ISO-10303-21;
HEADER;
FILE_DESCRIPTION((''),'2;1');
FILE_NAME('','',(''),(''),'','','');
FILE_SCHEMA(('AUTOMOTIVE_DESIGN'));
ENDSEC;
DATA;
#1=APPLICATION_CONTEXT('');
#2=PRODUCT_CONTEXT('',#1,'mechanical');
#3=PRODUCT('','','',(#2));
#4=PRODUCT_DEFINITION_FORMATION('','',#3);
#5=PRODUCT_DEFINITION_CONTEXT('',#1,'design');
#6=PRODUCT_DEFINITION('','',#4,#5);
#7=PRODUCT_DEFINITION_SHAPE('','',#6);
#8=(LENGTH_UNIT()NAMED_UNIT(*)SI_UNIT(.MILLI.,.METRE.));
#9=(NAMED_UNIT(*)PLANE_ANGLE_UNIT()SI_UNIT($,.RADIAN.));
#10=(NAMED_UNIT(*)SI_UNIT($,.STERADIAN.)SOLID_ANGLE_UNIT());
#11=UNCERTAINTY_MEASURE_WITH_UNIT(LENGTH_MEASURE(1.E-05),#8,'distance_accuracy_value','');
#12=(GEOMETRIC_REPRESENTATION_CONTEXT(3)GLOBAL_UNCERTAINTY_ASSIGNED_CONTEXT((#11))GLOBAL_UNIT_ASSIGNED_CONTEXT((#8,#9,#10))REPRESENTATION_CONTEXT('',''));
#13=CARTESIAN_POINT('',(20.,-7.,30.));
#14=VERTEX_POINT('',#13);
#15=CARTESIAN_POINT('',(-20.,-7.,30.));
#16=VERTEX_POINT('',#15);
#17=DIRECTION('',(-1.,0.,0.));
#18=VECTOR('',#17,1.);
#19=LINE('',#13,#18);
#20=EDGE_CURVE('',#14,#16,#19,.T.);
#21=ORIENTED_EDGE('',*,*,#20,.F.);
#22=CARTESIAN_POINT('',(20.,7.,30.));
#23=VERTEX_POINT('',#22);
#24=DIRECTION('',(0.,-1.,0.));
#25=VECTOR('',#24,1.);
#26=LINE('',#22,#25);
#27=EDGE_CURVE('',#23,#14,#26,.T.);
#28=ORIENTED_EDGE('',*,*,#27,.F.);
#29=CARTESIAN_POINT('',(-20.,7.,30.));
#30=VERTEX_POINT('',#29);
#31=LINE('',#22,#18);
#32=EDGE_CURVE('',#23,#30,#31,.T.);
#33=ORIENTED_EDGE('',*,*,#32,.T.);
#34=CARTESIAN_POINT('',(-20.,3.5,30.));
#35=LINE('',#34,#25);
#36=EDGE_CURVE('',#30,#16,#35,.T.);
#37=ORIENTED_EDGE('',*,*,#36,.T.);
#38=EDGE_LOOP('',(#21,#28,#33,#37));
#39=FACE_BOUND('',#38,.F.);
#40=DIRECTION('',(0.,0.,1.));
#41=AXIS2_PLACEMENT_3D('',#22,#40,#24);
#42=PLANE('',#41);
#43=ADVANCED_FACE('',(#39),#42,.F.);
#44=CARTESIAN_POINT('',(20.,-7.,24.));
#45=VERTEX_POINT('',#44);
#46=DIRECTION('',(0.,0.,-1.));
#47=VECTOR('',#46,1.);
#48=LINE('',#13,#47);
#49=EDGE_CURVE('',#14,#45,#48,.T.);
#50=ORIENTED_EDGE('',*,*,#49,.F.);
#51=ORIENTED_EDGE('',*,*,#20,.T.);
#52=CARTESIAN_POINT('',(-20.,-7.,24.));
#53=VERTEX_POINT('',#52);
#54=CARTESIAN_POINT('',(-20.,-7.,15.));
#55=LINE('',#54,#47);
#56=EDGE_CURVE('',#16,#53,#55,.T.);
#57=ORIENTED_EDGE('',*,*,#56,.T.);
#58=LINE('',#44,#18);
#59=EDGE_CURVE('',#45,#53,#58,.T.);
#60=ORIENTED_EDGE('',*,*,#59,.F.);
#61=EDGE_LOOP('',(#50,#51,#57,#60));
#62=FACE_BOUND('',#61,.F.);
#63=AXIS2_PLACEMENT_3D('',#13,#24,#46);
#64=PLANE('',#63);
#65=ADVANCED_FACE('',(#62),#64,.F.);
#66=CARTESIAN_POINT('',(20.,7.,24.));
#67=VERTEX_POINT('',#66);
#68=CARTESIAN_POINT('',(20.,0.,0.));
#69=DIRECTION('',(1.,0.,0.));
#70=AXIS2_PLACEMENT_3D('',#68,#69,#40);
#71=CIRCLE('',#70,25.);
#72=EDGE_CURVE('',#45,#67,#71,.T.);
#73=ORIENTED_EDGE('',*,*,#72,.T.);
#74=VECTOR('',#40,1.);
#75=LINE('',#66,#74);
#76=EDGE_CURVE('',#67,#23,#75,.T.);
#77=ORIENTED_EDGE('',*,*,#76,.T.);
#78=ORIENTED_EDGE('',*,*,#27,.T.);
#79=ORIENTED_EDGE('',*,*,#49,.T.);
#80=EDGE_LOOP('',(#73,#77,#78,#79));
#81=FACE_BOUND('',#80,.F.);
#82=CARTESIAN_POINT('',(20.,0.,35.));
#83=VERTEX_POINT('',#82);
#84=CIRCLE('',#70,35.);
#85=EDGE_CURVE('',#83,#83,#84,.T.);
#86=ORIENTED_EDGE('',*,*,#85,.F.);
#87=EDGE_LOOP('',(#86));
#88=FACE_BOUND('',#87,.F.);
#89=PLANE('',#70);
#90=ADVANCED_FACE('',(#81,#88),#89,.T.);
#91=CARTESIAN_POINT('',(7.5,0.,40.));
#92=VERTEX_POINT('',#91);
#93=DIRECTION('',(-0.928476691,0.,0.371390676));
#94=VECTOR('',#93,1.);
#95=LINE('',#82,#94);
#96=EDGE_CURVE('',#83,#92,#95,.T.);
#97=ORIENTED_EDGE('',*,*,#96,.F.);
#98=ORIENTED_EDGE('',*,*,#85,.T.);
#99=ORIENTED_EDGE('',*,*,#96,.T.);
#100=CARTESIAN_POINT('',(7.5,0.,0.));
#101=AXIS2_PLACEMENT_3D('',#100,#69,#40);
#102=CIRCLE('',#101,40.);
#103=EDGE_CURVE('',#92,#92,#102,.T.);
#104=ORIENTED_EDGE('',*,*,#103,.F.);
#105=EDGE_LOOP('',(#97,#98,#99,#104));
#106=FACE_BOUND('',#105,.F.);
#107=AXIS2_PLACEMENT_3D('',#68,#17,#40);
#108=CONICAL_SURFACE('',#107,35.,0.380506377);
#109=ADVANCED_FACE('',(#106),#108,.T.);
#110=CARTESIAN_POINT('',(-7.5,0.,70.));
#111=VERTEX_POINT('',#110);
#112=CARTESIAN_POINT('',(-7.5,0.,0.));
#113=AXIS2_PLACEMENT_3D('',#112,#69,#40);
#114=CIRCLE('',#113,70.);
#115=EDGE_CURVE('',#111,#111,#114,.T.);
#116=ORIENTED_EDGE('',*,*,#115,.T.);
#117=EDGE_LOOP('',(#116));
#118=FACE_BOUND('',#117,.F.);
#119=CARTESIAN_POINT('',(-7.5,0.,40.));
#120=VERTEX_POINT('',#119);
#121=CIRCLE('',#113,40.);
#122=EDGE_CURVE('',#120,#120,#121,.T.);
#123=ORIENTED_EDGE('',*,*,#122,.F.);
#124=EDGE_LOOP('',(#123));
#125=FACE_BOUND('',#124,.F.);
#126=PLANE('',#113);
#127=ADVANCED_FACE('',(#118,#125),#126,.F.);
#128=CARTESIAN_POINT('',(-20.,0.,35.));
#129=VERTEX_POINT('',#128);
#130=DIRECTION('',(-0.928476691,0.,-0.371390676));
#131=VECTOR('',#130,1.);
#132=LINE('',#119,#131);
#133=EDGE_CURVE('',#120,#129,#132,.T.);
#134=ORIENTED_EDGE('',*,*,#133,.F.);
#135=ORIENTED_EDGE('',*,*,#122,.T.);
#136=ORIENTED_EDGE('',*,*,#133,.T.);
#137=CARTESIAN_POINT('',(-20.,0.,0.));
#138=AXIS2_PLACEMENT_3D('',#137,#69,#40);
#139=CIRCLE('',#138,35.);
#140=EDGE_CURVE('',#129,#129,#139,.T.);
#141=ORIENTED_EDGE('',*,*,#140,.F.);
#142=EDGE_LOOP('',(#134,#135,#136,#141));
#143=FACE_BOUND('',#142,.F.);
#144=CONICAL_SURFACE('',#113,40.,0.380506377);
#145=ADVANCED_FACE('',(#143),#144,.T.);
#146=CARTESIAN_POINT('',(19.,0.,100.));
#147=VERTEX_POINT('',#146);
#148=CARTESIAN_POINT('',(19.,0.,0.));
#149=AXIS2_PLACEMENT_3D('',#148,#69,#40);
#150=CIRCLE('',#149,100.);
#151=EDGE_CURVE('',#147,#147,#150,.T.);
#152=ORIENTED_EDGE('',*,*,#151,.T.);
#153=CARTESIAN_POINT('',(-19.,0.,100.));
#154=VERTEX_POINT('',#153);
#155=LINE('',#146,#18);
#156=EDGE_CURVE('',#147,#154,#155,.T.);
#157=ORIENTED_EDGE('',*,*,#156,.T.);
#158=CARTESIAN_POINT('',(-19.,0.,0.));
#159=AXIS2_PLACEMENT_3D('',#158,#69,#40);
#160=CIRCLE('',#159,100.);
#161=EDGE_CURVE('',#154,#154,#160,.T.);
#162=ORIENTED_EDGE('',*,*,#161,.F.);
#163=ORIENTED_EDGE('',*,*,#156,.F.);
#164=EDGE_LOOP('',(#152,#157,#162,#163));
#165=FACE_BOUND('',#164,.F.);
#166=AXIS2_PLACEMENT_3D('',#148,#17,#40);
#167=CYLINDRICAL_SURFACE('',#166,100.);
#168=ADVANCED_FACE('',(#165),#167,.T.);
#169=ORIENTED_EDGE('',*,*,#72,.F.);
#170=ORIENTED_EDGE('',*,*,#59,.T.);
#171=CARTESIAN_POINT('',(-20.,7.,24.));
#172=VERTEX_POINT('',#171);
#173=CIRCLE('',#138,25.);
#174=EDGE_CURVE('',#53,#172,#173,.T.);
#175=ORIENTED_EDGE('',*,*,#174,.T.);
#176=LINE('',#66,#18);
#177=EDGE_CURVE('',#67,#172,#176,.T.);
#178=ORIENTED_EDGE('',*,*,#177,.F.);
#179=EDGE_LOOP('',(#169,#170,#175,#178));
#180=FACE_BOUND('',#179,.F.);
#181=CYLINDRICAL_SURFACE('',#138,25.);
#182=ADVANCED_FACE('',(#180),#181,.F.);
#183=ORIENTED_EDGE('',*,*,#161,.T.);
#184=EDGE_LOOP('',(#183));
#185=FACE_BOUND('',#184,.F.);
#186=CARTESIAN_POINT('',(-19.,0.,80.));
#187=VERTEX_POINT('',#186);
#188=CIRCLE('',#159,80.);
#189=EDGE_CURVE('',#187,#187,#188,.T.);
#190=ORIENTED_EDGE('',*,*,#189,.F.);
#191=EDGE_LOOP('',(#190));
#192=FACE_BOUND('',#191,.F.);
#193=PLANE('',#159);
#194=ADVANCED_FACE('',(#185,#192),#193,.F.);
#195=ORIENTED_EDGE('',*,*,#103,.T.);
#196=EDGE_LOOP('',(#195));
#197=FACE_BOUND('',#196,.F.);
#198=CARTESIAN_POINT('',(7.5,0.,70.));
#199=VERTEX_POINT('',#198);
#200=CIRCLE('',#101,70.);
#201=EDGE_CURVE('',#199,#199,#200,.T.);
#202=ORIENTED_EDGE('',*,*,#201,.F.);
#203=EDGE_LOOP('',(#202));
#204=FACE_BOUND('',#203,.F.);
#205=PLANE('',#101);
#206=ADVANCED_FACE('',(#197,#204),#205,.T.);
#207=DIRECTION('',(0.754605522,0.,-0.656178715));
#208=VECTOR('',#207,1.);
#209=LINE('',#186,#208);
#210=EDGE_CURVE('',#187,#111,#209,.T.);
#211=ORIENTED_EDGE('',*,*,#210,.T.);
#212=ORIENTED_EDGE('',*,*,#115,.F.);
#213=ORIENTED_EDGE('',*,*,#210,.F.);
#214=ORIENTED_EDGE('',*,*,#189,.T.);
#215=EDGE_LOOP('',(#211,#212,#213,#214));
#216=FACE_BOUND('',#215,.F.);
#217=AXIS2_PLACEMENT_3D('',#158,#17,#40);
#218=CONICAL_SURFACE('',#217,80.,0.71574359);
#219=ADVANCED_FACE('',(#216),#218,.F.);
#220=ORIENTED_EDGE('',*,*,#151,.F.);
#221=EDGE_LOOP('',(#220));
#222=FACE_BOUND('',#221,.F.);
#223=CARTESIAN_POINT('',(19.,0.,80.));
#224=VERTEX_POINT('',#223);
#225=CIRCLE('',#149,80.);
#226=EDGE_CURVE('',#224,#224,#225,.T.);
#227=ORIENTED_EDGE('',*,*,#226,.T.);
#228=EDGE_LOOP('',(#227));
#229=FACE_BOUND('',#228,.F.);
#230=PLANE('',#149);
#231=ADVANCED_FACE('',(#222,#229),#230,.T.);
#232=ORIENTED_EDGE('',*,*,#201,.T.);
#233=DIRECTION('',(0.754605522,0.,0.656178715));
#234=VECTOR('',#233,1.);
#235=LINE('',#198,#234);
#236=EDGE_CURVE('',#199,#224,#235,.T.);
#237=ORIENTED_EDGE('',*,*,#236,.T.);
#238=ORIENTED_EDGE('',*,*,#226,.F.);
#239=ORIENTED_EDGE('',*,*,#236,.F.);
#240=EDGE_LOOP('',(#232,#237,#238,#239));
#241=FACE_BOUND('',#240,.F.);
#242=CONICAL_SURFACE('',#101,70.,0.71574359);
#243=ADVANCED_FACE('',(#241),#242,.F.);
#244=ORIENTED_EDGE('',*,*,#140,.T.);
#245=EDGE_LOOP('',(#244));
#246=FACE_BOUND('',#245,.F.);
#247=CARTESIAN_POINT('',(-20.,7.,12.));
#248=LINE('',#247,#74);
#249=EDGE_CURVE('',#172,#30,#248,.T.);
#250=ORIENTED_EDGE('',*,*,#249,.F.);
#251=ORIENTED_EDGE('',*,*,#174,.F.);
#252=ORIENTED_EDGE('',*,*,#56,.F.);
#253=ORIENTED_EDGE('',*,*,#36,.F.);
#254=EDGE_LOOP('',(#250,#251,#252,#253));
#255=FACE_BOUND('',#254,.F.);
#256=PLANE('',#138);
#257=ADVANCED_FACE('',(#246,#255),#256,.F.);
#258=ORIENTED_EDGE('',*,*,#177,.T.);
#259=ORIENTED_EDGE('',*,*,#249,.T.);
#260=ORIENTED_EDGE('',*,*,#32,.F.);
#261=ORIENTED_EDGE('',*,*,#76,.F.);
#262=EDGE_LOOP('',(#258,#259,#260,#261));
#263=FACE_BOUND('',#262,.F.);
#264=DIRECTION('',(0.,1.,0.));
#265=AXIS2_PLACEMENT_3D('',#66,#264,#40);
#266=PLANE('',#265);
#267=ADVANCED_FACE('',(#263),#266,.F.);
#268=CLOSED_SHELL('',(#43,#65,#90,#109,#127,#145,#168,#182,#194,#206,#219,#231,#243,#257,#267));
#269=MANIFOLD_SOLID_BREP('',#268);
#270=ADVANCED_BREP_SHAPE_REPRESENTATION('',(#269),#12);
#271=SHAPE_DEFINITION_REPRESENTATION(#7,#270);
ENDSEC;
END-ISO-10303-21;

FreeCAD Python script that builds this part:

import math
import FreeCAD as App
import Part
import Sketcher
from FreeCAD import Vector
Q = App.Units.Quantity

doc = App.newDocument("Part")
body = doc.addObject("PartDesign::Body", "Body")

# Sketch on XZ plane
sketch1 = body.newObject("Sketcher::SketchObject", "Sketch")
sketch1.AttachmentSupport = (doc.getObject("XZ_Plane"), [""])
sketch1.MapMode = "FlatFace"
sketch1.addGeometry([
    Part.LineSegment(Vector(-20, 25, 0), Vector(20, 25, 0)),  # 0
    Part.LineSegment(Vector(20, 25, 0), Vector(20, 35, 0)),  # 1
    Part.LineSegment(Vector(20, 35, 0), Vector(8, 40, 0)),  # 2
    Part.LineSegment(Vector(8, 40, 0), Vector(8, 70, 0)),  # 3
    Part.LineSegment(Vector(8, 70, 0), Vector(19, 80, 0)),  # 4
    Part.LineSegment(Vector(19, 80, 0), Vector(19, 100, 0)),  # 5
    Part.LineSegment(Vector(19, 100, 0), Vector(-19, 100, 0)),  # 6
    Part.LineSegment(Vector(-19, 100, 0), Vector(-19, 80, 0)),  # 7
    Part.LineSegment(Vector(-19, 80, 0), Vector(-8, 70, 0)),  # 8
    Part.LineSegment(Vector(-8, 70, 0), Vector(-8, 40, 0)),  # 9
    Part.LineSegment(Vector(-8, 40, 0), Vector(-20, 35, 0)),  # 10
    Part.LineSegment(Vector(-20, 35, 0), Vector(-20, 25, 0)),  # 11
], False)
sketch1.addConstraint([
    Sketcher.Constraint("Coincident", 0, 2, 1, 1),
    Sketcher.Constraint("Coincident", 1, 2, 2, 1),
    Sketcher.Constraint("Coincident", 2, 2, 3, 1),
    Sketcher.Constraint("Coincident", 3, 2, 4, 1),
    Sketcher.Constraint("Coincident", 4, 2, 5, 1),
    Sketcher.Constraint("Coincident", 5, 2, 6, 1),
    Sketcher.Constraint("Coincident", 6, 2, 7, 1),
    Sketcher.Constraint("Coincident", 7, 2, 8, 1),
    Sketcher.Constraint("Coincident", 8, 2, 9, 1),
    Sketcher.Constraint("Coincident", 9, 2, 10, 1),
    Sketcher.Constraint("Coincident", 10, 2, 11, 1),
    Sketcher.Constraint("Coincident", 11, 2, 0, 1),
    Sketcher.Constraint("Horizontal", 0),
    Sketcher.Constraint("Vertical", 1),
    Sketcher.Constraint("Vertical", 3),
    Sketcher.Constraint("Vertical", 5),
    Sketcher.Constraint("Horizontal", 6),
    Sketcher.Constraint("Vertical", 7),
    Sketcher.Constraint("Vertical", 9),
    Sketcher.Constraint("Vertical", 11),
    Sketcher.Constraint("Symmetric", 4, 2, 7, 2, -2),
    Sketcher.Constraint("Symmetric", 3, 2, 8, 2, -2),
    Sketcher.Constraint("Symmetric", 1, 2, 10, 2, -2),
    Sketcher.Constraint("Horizontal", 2, 2, 9, 2),
    Sketcher.Constraint("DistanceX", 0, 1, 0, 2, Q("40 mm")),
    Sketcher.Constraint("DistanceX", 6, 2, 6, 1, Q("38 mm")),
    Sketcher.Constraint("DistanceY", 1, 1, 1, 2, Q("10 mm")),
    Sketcher.Constraint("DistanceY", 3, 1, 3, 2, Q("30 mm")),
    Sketcher.Constraint("DistanceY", 5, 1, 5, 2, Q("20 mm")),
    Sketcher.Constraint("DistanceY", -1, 1, 0, 2, Q("25 mm")),
    Sketcher.Constraint("DistanceY", -1, 1, 2, 2, Q("40 mm")),
    Sketcher.Constraint("DistanceY", -1, 1, 4, 2, Q("80 mm")),
    Sketcher.Constraint("DistanceX", 8, 2, 3, 2, Q("15 mm")),
])
revolution = body.newObject("PartDesign::Revolution", "Revolution")
revolution.Profile = sketch1
revolution.ReferenceAxis = (sketch1, ["H_Axis"])
revolution.Angle = 360

# Sketch on YZ plane
sketch2 = body.newObject("Sketcher::SketchObject", "Sketch001")
sketch2.AttachmentSupport = (doc.getObject("YZ_Plane"), [""])
sketch2.MapMode = "FlatFace"
sketch2.AttachmentOffset = App.Placement(Vector(0, 0, 20), App.Rotation())
sketch2.addGeometry([
    Part.LineSegment(Vector(7, 24, 0), Vector(7, 30, 0)),
    Part.LineSegment(Vector(7, 30, 0), Vector(-7, 30, 0)),
    Part.LineSegment(Vector(-7, 30, 0), Vector(-7, 24, 0)),
    Part.ArcOfCircle(Part.Circle(Vector(0, 0, 0), Vector(0, 0, 1), 25), math.radians(74), math.radians(106)),
], False)
sketch2.addConstraint([
    Sketcher.Constraint("Coincident", 0, 2, 1, 1),
    Sketcher.Constraint("Coincident", 1, 2, 2, 1),
    Sketcher.Constraint("Coincident", 2, 2, 3, 2),
    Sketcher.Constraint("Coincident", 3, 1, 0, 1),
    Sketcher.Constraint("Vertical", 0),
    Sketcher.Constraint("Horizontal", 1),
    Sketcher.Constraint("Vertical", 2),
    Sketcher.Constraint("Coincident", 3, 3, -1, 1),
    Sketcher.Constraint("Horizontal", 2, 2, 3, 1),
    Sketcher.Constraint("Radius", 3, Q("25 mm")),
    Sketcher.Constraint("DistanceX", 1, 2, 1, 1, Q("14 mm")),
    Sketcher.Constraint("DistanceY", 0, 1, 0, 2, Q("6 mm")),
])
pocket1 = body.newObject("PartDesign::Pocket", "Pocket")
pocket1.Profile = sketch2
pocket1.Type = "ThroughAll"

doc.recompute()
